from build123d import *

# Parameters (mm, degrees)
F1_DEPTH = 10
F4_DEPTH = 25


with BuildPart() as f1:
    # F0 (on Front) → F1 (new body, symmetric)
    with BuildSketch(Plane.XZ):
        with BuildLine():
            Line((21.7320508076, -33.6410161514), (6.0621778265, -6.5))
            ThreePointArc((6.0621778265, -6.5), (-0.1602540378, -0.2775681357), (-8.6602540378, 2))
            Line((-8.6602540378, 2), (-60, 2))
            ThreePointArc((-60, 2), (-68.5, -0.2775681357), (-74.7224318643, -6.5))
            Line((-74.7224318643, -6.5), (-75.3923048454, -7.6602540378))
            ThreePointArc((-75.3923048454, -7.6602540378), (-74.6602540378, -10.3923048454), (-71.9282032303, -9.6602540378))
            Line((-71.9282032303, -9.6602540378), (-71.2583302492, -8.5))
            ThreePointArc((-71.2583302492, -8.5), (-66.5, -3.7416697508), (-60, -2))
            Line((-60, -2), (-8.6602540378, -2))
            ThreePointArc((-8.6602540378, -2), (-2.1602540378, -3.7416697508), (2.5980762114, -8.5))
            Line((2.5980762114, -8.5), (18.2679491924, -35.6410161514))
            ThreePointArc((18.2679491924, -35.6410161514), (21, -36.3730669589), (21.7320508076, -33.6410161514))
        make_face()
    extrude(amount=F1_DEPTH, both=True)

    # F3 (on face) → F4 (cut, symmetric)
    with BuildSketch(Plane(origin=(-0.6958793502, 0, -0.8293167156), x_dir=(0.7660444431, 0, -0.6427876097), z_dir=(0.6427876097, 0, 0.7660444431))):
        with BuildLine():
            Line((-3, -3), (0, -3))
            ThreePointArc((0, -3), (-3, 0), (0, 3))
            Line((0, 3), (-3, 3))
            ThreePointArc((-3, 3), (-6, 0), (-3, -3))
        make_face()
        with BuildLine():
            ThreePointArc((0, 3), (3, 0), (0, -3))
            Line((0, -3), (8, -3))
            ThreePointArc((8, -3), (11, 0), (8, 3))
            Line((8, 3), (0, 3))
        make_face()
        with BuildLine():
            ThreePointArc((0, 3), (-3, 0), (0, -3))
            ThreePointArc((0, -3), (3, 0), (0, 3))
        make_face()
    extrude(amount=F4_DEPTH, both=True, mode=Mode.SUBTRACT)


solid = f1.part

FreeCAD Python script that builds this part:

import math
import FreeCAD as App
import Part
import Sketcher

V = App.Vector
Q = App.Units.Quantity

doc = App.newDocument("Part")
body = doc.addObject("PartDesign::Body", "Body")

sketch1 = body.newObject("Sketcher::SketchObject", "Sketch")
sketch1.AttachmentSupport = (doc.getObject("XZ_Plane"), [""])
sketch1.MapMode = "FlatFace"
sketch1.addGeometry(Part.LineSegment(V(21.7, -33.6, 0), V(6.1, -6.5, 0)), False)
sketch1.addGeometry(Part.ArcOfCircle(Part.Circle(V(-8.7, -15, 0), V(0, 0, 1), 17), math.radians(30), math.radians(90)), False)
sketch1.addGeometry(Part.LineSegment(V(-8.7, 2, 0), V(-60, 2, 0)), False)
sketch1.addGeometry(Part.ArcOfCircle(Part.Circle(V(-60, -15, 0), V(0, 0, 1), 17), math.radians(90), math.radians(150)), False)
sketch1.addGeometry(Part.LineSegment(V(-74.7, -6.5, 0), V(-75.4, -7.7, 0)), False)
sketch1.addGeometry(Part.ArcOfCircle(Part.Circle(V(-73.7, -8.7, 0), V(0, 0, 1), 2), math.radians(150), math.radians(330)), False)
sketch1.addGeometry(Part.LineSegment(V(-71.9, -9.7, 0), V(-71.3, -8.5, 0)), False)
sketch1.addGeometry(Part.ArcOfCircle(Part.Circle(V(-60, -15, 0), V(0, 0, 1), 13), math.radians(90), math.radians(150)), False)
sketch1.addGeometry(Part.LineSegment(V(-60, -2, 0), V(-8.7, -2, 0)), False)
sketch1.addGeometry(Part.ArcOfCircle(Part.Circle(V(-8.7, -15, 0), V(0, 0, 1), 13), math.radians(30), math.radians(90)), False)
sketch1.addGeometry(Part.LineSegment(V(2.6, -8.5, 0), V(18.3, -35.6, 0)), False)
sketch1.addGeometry(Part.ArcOfCircle(Part.Circle(V(20, -34.6, 0), V(0, 0, 1), 2), math.radians(-150), math.radians(30)), False)
sketch1.addConstraint(Sketcher.Constraint("Tangent", 0, 2, 1, 1))
sketch1.addConstraint(Sketcher.Constraint("Tangent", 1, 2, 2, 1))
sketch1.addConstraint(Sketcher.Constraint("Tangent", 2, 2, 3, 1))
sketch1.addConstraint(Sketcher.Constraint("Tangent", 3, 2, 4, 1))
sketch1.addConstraint(Sketcher.Constraint("Tangent", 4, 2, 5, 1))
sketch1.addConstraint(Sketcher.Constraint("Tangent", 5, 2, 6, 1))
sketch1.addConstraint(Sketcher.Constraint("Tangent", 6, 2, 7, 2))
sketch1.addConstraint(Sketcher.Constraint("Tangent", 7, 1, 8, 1))
sketch1.addConstraint(Sketcher.Constraint("Tangent", 8, 2, 9, 2))
sketch1.addConstraint(Sketcher.Constraint("Tangent", 9, 1, 10, 1))
sketch1.addConstraint(Sketcher.Constraint("Tangent", 10, 2, 11, 1))
sketch1.addConstraint(Sketcher.Constraint("Tangent", 11, 2, 0, 1))
sketch1.addConstraint(Sketcher.Constraint("Horizontal", 2))
sketch1.addConstraint(Sketcher.Constraint("Horizontal", 8))
sketch1.addConstraint(Sketcher.Constraint("Coincident", 7, 3, 3, 3))
sketch1.addConstraint(Sketcher.Constraint("Coincident", 9, 3, 1, 3))
sketch1.addConstraint(Sketcher.Constraint("Equal", 1, 3))
sketch1.addConstraint(Sketcher.Constraint("Equal", 5, 11))
sketch1.addConstraint(Sketcher.Constraint("Parallel", 4, 6))
sketch1.addConstraint(Sketcher.Constraint("Horizontal", 0, 2, 3, 2))
sketch1.addConstraint(Sketcher.Constraint("Radius", 1, Q("17 mm")))
sketch1.addConstraint(Sketcher.Constraint("Radius", 5, Q("2 mm")))
sketch1.addConstraint(Sketcher.Constraint("Angle", 0, Q("120 deg")))
sketch1.addConstraint(Sketcher.Constraint("DistanceY", 1, 3, -1, 1, Q("15 mm")))
sketch1.addConstraint(Sketcher.Constraint("DistanceX", 3, 3, -1, 1, Q("60 mm")))
sketch1.addConstraint(Sketcher.Constraint("DistanceX", -1, 1, 11, 3, Q("20 mm")))
sketch1.addConstraint(Sketcher.Constraint("DistanceX", 5, 3, 1, 3, Q("65 mm")))
sketch1.addConstraint(Sketcher.Constraint("DistanceX", 2, 2, 2, 1, Q("51.339746 mm")))
pad1 = body.newObject("PartDesign::Pad", "Pad")
pad1.Profile = sketch1
pad1.Length = 20
pad1.Midplane = True

sketch2 = body.newObject("Sketcher::SketchObject", "Sketch001")
sketch2.Placement = App.Placement(V(-0.695879, 0, -0.829317), App.Rotation(V(0.766044443, 0, -0.64278761), V(0, 1, 0), V(0.64278761, 0, 0.766044443), "ZXY"))
sketch2.addGeometry(Part.LineSegment(V(-3, -3, 0), V(8, -3, 0)), False)
sketch2.addGeometry(Part.ArcOfCircle(Part.Circle(V(8, 0, 0), V(0, 0, 1), 3), math.radians(-90), math.radians(90)), False)
sketch2.addGeometry(Part.LineSegment(V(8, 3, 0), V(-3, 3, 0)), False)
sketch2.addGeometry(Part.ArcOfCircle(Part.Circle(V(-3, 0, 0), V(0, 0, 1), 3), math.radians(90), math.radians(270)), False)
sketch2.addConstraint(Sketcher.Constraint("Tangent", 0, 2, 1, 1))
sketch2.addConstraint(Sketcher.Constraint("Tangent", 1, 2, 2, 1))
sketch2.addConstraint(Sketcher.Constraint("Tangent", 2, 2, 3, 1))
sketch2.addConstraint(Sketcher.Constraint("Tangent", 3, 2, 0, 1))
sketch2.addConstraint(Sketcher.Constraint("Horizontal", 0))
sketch2.addConstraint(Sketcher.Constraint("Horizontal", 2))
sketch2.addConstraint(Sketcher.Constraint("PointOnObject", 1, 3, -1))
sketch2.addConstraint(Sketcher.Constraint("Radius", 1, Q("3 mm")))
sketch2.addConstraint(Sketcher.Constraint("DistanceX", 0, 1, 0, 2, Q("11 mm")))
sketch2.addConstraint(Sketcher.Constraint("DistanceX", -1, 1, 1, 3, Q("8 mm")))
pocket1 = body.newObject("PartDesign::Pocket", "Pocket")
pocket1.Profile = sketch2
pocket1.Length = 50
pocket1.Midplane = True

doc.recompute()
